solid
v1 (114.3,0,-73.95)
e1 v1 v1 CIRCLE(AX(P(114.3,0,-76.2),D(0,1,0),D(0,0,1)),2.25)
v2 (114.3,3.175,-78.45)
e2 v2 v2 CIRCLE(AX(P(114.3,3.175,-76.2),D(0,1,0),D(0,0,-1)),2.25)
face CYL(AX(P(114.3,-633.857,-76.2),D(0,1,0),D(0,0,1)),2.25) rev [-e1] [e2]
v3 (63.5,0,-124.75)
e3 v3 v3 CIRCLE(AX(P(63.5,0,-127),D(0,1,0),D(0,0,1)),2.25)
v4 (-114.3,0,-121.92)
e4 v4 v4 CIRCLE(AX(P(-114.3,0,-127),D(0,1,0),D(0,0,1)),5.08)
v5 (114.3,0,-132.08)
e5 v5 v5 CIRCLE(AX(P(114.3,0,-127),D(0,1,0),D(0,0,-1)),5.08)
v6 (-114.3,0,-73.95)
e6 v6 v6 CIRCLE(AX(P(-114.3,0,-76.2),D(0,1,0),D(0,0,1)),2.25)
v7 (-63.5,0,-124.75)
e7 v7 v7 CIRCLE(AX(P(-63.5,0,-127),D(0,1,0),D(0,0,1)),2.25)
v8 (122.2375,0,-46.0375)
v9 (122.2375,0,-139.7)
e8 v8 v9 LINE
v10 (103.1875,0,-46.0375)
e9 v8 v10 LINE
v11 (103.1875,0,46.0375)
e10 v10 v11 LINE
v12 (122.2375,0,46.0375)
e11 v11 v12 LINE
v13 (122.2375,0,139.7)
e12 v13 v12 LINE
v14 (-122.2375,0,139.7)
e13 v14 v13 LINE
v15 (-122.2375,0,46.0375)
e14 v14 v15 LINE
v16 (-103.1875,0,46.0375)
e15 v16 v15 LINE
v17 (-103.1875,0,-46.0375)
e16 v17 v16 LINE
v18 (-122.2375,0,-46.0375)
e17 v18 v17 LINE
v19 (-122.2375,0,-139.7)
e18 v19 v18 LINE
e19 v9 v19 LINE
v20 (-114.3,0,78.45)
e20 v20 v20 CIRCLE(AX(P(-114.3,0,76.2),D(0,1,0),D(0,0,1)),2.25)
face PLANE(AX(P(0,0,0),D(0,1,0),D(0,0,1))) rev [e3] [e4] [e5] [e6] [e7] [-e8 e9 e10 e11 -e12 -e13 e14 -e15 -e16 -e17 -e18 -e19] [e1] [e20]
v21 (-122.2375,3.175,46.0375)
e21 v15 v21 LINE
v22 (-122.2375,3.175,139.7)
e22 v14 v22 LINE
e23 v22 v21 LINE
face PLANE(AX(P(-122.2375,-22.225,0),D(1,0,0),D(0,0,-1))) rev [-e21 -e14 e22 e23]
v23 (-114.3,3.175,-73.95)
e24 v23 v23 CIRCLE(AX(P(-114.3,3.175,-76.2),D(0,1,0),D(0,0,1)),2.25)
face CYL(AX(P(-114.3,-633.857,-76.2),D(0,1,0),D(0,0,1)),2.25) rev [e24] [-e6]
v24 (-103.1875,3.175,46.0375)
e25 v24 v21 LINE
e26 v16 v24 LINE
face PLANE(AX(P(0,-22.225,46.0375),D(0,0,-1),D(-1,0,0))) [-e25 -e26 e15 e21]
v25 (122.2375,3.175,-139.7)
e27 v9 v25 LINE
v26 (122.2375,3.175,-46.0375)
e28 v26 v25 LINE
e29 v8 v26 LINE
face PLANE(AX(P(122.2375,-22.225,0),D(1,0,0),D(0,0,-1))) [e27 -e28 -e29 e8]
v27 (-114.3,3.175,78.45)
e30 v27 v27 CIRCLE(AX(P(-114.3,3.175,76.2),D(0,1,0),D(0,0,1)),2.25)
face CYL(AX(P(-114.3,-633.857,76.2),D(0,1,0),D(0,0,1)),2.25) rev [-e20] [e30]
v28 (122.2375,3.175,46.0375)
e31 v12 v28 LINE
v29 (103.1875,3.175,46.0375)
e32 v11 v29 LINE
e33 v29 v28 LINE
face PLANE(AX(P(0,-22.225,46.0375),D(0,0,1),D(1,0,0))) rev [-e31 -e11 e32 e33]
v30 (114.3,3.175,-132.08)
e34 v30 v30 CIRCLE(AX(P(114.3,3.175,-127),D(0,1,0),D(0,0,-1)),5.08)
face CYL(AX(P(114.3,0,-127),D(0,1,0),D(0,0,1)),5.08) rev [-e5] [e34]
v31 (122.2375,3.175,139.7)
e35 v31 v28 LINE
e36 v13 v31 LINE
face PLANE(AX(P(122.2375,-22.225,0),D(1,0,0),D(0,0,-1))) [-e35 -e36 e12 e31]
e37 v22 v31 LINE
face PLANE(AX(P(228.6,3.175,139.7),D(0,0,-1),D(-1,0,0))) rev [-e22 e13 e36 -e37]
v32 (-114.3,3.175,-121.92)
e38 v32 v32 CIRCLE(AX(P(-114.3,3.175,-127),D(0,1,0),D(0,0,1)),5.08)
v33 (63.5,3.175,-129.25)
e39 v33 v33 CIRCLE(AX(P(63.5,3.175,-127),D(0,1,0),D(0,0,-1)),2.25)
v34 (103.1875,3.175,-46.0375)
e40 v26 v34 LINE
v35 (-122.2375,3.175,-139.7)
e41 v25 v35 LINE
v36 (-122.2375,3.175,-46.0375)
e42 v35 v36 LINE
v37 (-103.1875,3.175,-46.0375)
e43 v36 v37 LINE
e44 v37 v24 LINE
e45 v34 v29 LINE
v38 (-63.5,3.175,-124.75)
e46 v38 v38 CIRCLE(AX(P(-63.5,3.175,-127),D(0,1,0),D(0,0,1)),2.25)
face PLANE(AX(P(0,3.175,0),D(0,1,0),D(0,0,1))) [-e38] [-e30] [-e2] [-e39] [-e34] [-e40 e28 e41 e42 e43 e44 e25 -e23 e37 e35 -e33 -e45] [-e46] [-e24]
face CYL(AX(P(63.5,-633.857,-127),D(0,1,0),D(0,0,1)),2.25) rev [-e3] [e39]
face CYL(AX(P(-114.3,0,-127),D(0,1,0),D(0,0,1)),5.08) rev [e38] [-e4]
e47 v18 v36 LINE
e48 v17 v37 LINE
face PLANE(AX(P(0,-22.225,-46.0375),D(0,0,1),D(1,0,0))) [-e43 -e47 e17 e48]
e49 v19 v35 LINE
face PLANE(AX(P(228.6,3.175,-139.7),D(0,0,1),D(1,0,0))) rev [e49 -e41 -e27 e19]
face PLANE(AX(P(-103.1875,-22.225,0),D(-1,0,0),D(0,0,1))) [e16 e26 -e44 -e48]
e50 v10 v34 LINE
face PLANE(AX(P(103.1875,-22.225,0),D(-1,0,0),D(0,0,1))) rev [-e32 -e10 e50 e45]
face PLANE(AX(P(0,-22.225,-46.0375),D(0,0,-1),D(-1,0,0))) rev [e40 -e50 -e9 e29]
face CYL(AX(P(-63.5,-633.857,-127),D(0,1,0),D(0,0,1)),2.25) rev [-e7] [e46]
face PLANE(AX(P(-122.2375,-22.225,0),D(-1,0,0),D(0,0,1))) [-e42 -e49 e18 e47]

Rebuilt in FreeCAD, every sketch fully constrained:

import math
import FreeCAD as App
import Part
import Sketcher
Q = App.Units.Quantity

doc = App.newDocument("Part")
body = doc.addObject("PartDesign::Body", "Body")

sketch1 = doc.addObject("Sketcher::SketchObject", "Sketch")
body.addObject(sketch1)
sketch1.AttachmentSupport = (doc.XZ_Plane, [""])
sketch1.MapMode = "FlatFace"
sketch1.addGeometry(Part.LineSegment(App.Vector(-229, -140, 0), App.Vector(-229, 140, 0)), False)
sketch1.addGeometry(Part.LineSegment(App.Vector(-229, 140, 0), App.Vector(229, 140, 0)), False)
sketch1.addGeometry(Part.LineSegment(App.Vector(229, 140, 0), App.Vector(229, -140, 0)), False)
sketch1.addGeometry(Part.LineSegment(App.Vector(229, -140, 0), App.Vector(-229, -140, 0)), False)
sketch1.addConstraint(Sketcher.Constraint("Coincident", 0, 2, 1, 1))
sketch1.addConstraint(Sketcher.Constraint("Coincident", 1, 2, 2, 1))
sketch1.addConstraint(Sketcher.Constraint("Coincident", 2, 2, 3, 1))
sketch1.addConstraint(Sketcher.Constraint("Coincident", 3, 2, 0, 1))
sketch1.addConstraint(Sketcher.Constraint("Vertical", 0))
sketch1.addConstraint(Sketcher.Constraint("Horizontal", 1))
sketch1.addConstraint(Sketcher.Constraint("Vertical", 2))
sketch1.addConstraint(Sketcher.Constraint("Horizontal", 3))
sketch1.addConstraint(Sketcher.Constraint("Symmetric", 0, 2, 2, 2, -1, 1))
sketch1.addConstraint(Sketcher.Constraint("DistanceX", 1, 1, 1, 2, Q("18 in")))
sketch1.addConstraint(Sketcher.Constraint("DistanceY", 0, 1, 0, 2, Q("11 in")))
pad1 = doc.addObject("PartDesign::Pad", "Pad")
body.addObject(pad1)
pad1.Profile = sketch1
pad1.Length = Q("0.125 in")
pad1.Reversed = True

sketch2 = doc.addObject("Sketcher::SketchObject", "Sketch001")
body.addObject(sketch2)
sketch2.AttachmentSupport = (doc.XZ_Plane, [""])
sketch2.MapMode = "FlatFace"
sketch2.AttachmentOffset = App.Placement(App.Vector(0, 0, -0.125 * 25.4), App.Rotation())
sketch2.addGeometry(Part.Circle(App.Vector(-114, -127, 0), App.Vector(0, 0, 1), 5), False)
sketch2.addGeometry(Part.Circle(App.Vector(114, -127, 0), App.Vector(0, 0, 1), 5), False)
sketch2.addGeometry(Part.Circle(App.Vector(-216, 127, 0), App.Vector(0, 0, 1), 5), False)
sketch2.addGeometry(Part.Circle(App.Vector(216, 127, 0), App.Vector(0, 0, 1), 5), False)
sketch2.addGeometry(Part.LineSegment(App.Vector(-206, -124, 0), App.Vector(-212, -131, 0)), False)
sketch2.addGeometry(Part.ArcOfCircle(Part.Circle(App.Vector(-216, -127, 0), App.Vector(0, 0, 1), 5), math.radians(135), math.radians(315)), False)
sketch2.addGeometry(Part.LineSegment(App.Vector(-219, -123, 0), App.Vector(-213, -117, 0)), False)
sketch2.addGeometry(Part.ArcOfCircle(Part.Circle(App.Vector(-210, -121, 0), App.Vector(0, 0, 1), 5), math.radians(-45), math.radians(135)), False)
sketch2.addGeometry(Part.LineSegment(App.Vector(212, -131, 0), App.Vector(206, -124, 0)), False)
sketch2.addGeometry(Part.ArcOfCircle(Part.Circle(App.Vector(210, -121, 0), App.Vector(0, 0, 1), 5), math.radians(45), math.radians(225)), False)
sketch2.addGeometry(Part.LineSegment(App.Vector(213, -117, 0), App.Vector(219, -123, 0)), False)
sketch2.addGeometry(Part.ArcOfCircle(Part.Circle(App.Vector(216, -127, 0), App.Vector(0, 0, 1), 5), math.radians(-135), math.radians(45)), False)
sketch2.addConstraint(Sketcher.Constraint("Tangent", 4, 2, 5, 2))
sketch2.addConstraint(Sketcher.Constraint("Tangent", 5, 1, 6, 1))
sketch2.addConstraint(Sketcher.Constraint("Tangent", 6, 2, 7, 2))
sketch2.addConstraint(Sketcher.Constraint("Tangent", 7, 1, 4, 1))
sketch2.addConstraint(Sketcher.Constraint("Tangent", 8, 2, 9, 2))
sketch2.addConstraint(Sketcher.Constraint("Tangent", 9, 1, 10, 1))
sketch2.addConstraint(Sketcher.Constraint("Tangent", 10, 2, 11, 2))
sketch2.addConstraint(Sketcher.Constraint("Tangent", 11, 1, 8, 1))
sketch2.addConstraint(Sketcher.Constraint("Equal", 0, 1))
sketch2.addConstraint(Sketcher.Constraint("Equal", 1, 2))
sketch2.addConstraint(Sketcher.Constraint("Equal", 2, 3))
sketch2.addConstraint(Sketcher.Constraint("Equal", 3, 5))
sketch2.addConstraint(Sketcher.Constraint("Equal", 5, 7))
sketch2.addConstraint(Sketcher.Constraint("Equal", 7, 9))
sketch2.addConstraint(Sketcher.Constraint("Equal", 9, 11))
sketch2.addConstraint(Sketcher.Constraint("Symmetric", 3, 3, 5, 3, -1, 1))
sketch2.addConstraint(Sketcher.Constraint("Symmetric", 2, 3, 11, 3, -1, 1))
sketch2.addConstraint(Sketcher.Constraint("Symmetric", 0, 3, 1, 3, -2))
sketch2.addConstraint(Sketcher.Constraint("Symmetric", 2, 3, 3, 3, -2))
sketch2.addConstraint(Sketcher.Constraint("Symmetric", 7, 3, 9, 3, -2))
sketch2.addConstraint(Sketcher.Constraint("Perpendicular", 6, 8))
sketch2.addConstraint(Sketcher.Constraint("Horizontal", 1, 3, 5, 3))
sketch2.addConstraint(Sketcher.Constraint("Diameter", 0, Q("0.4 in")))
sketch2.addConstraint(Sketcher.Constraint("DistanceY", 0, 3, -1, 1, Q("5 in")))
sketch2.addConstraint(Sketcher.Constraint("DistanceX", 0, 3, 1, 3, Q("9 in")))
sketch2.addConstraint(Sketcher.Constraint("DistanceX", 2, 3, 0, 3, Q("4 in")))
sketch2.addConstraint(Sketcher.Constraint("DistanceX", 7, 3, 9, 3, Q("16.5 in")))
pocket1 = doc.addObject("PartDesign::Pocket", "Pocket")
body.addObject(pocket1)
pocket1.Profile = sketch2
pocket1.Length = Q("0.125 in")
pocket1.Reversed = True

sketch3 = doc.addObject("Sketcher::SketchObject", "Sketch002")
body.addObject(sketch3)
sketch3.AttachmentSupport = (doc.XZ_Plane, [""])
sketch3.MapMode = "FlatFace"
sketch3.AttachmentOffset = App.Placement(App.Vector(0, 0, -0.125 * 25.4), App.Rotation())
sketch3.addGeometry(Part.Circle(App.Vector(-196.8, -127, 0), App.Vector(0, 0, 1), 2.2), False)
sketch3.addGeometry(Part.Circle(App.Vector(-215.9, -108, 0), App.Vector(0, 0, 1), 2.2), False)
sketch3.addGeometry(Part.Circle(App.Vector(196.8, -127, 0), App.Vector(0, 0, 1), 2.2), False)
sketch3.addGeometry(Part.Circle(App.Vector(215.9, -108, 0), App.Vector(0, 0, 1), 2.2), False)
sketch3.addConstraint(Sketcher.Constraint("Equal", 0, 1))
sketch3.addConstraint(Sketcher.Constraint("Equal", 1, 2))
sketch3.addConstraint(Sketcher.Constraint("Equal", 2, 3))
sketch3.addConstraint(Sketcher.Constraint("Symmetric", 0, 3, 2, 3, -2))
sketch3.addConstraint(Sketcher.Constraint("Symmetric", 1, 3, 3, 3, -2))
sketch3.addConstraint(Sketcher.Constraint("DistanceY", 0, 3, -1, 1, Q("5 in")))
sketch3.addConstraint(Sketcher.Constraint("DistanceX", 1, 3, 3, 3, Q("17 in")))
sketch3.addConstraint(Sketcher.Constraint("DistanceX", 0, 3, 2, 3, Q("15.5 in")))
sketch3.addConstraint(Sketcher.Constraint("Diameter", 0, 4.5))
sketch3.addConstraint(Sketcher.Constraint("DistanceY", 1, 3, -1, 1, Q("4.25 in")))
pocket2 = doc.addObject("PartDesign::Pocket", "Pocket001")
body.addObject(pocket2)
pocket2.Profile = sketch3
pocket2.Length = Q("1 in")
pocket2.Reversed = True

sketch4 = doc.addObject("Sketcher::SketchObject", "Sketch003")
body.addObject(sketch4)
sketch4.AttachmentSupport = (doc.XZ_Plane, [""])
sketch4.MapMode = "FlatFace"
sketch4.AttachmentOffset = App.Placement(App.Vector(0, 0, -0.125 * 25.4), App.Rotation())
sketch4.addGeometry(Part.Circle(App.Vector(-215.9, -76.2, 0), App.Vector(0, 0, 1), 2.2), False)
sketch4.addGeometry(Part.Circle(App.Vector(-215.9, 0, 0), App.Vector(0, 0, 1), 2.2), False)
sketch4.addGeometry(Part.Circle(App.Vector(-215.9, 88.9, 0), App.Vector(0, 0, 1), 2.2), False)
sketch4.addGeometry(Part.Circle(App.Vector(-114.3, 76.2, 0), App.Vector(0, 0, 1), 2.2), False)
sketch4.addGeometry(Part.Circle(App.Vector(-114.3, -76.2, 0), App.Vector(0, 0, 1), 2.2), False)
sketch4.addGeometry(Part.Circle(App.Vector(-63.5, -127, 0), App.Vector(0, 0, 1), 2.2), False)
sketch4.addGeometry(Part.Circle(App.Vector(63.5, -127, 0), App.Vector(0, 0, 1), 2.2), False)
sketch4.addGeometry(Part.Circle(App.Vector(114.3, -76.2, 0), App.Vector(0, 0, 1), 2.2), False)
sketch4.addGeometry(Part.Circle(App.Vector(215.9, 88.9, 0), App.Vector(0, 0, 1), 2.2), False)
sketch4.addGeometry(Part.Circle(App.Vector(215.9, 0, 0), App.Vector(0, 0, 1), 2.2), False)
sketch4.addGeometry(Part.Circle(App.Vector(215.9, -76.2, 0), App.Vector(0, 0, 1), 2.2), False)
sketch4.addConstraint(Sketcher.Constraint("Equal", 0, 1))
sketch4.addConstraint(Sketcher.Constraint("Equal", 1, 2))
sketch4.addConstraint(Sketcher.Constraint("Equal", 2, 3))
sketch4.addConstraint(Sketcher.Constraint("Equal", 3, 4))
sketch4.addConstraint(Sketcher.Constraint("Equal", 4, 5))
sketch4.addConstraint(Sketcher.Constraint("Equal", 5, 6))
sketch4.addConstraint(Sketcher.Constraint("Equal", 6, 7))
sketch4.addConstraint(Sketcher.Constraint("Equal", 7, 8))
sketch4.addConstraint(Sketcher.Constraint("Equal", 8, 9))
sketch4.addConstraint(Sketcher.Constraint("Equal", 9, 10))
sketch4.addConstraint(Sketcher.Constraint("Symmetric", 3, 3, 7, 3, -1, 1))
sketch4.addConstraint(Sketcher.Constraint("Symmetric", 1, 3, 9, 3, -1, 1))
sketch4.addConstraint(Sketcher.Constraint("Symmetric", 5, 3, 6, 3, -2))
sketch4.addConstraint(Sketcher.Constraint("Symmetric", 4, 3, 7, 3, -2))
sketch4.addConstraint(Sketcher.Constraint("Symmetric", 2, 3, 8, 3, -2))
sketch4.addConstraint(Sketcher.Constraint("Symmetric", 0, 3, 10, 3, -2))
sketch4.addConstraint(Sketcher.Constraint("PointOnObject", 1, 3, -1))
sketch4.addConstraint(Sketcher.Constraint("Horizontal", 0, 3, 4, 3))
sketch4.addConstraint(Sketcher.Constraint("Vertical", 0, 3, 1, 3))
sketch4.addConstraint(Sketcher.Constraint("Vertical", 1, 3, 2, 3))
sketch4.addConstraint(Sketcher.Constraint("DistanceY", 0, 3, -1, 1, Q("3 in")))
sketch4.addConstraint(Sketcher.Constraint("DistanceY", 5, 3, -1, 1, Q("5 in")))
sketch4.addConstraint(Sketcher.Constraint("DistanceX", 2, 3, 3, 3, Q("4 in")))
sketch4.addConstraint(Sketcher.Constraint("DistanceX", 4, 3, 5, 3, Q("2 in")))
sketch4.addConstraint(Sketcher.Constraint("DistanceX", 5, 3, 6, 3, Q("5 in")))
sketch4.addConstraint(Sketcher.Constraint("DistanceY", -1, 1, 2, 3, Q("3.5 in")))
sketch4.addConstraint(Sketcher.Constraint("Diameter", 0, 4.5))
pocket3 = doc.addObject("PartDesign::Pocket", "Pocket002")
body.addObject(pocket3)
pocket3.Profile = sketch4
pocket3.Length = Q("25.08 in")
pocket3.Reversed = True

sketch5 = doc.addObject("Sketcher::SketchObject", "Sketch004")
body.addObject(sketch5)
sketch5.AttachmentSupport = (doc.XZ_Plane, [""])
sketch5.MapMode = "FlatFace"
sketch5.AttachmentOffset = App.Placement(App.Vector(0, 0, -0.125 * 25.4), App.Rotation())
sketch5.addGeometry(Part.LineSegment(App.Vector(-122.2, -46, 0), App.Vector(-122.2, -139.7, 0)), False)
sketch5.addGeometry(Part.LineSegment(App.Vector(-122.2, -139.7, 0), App.Vector(-228.6, -139.7, 0)), False)
sketch5.addGeometry(Part.LineSegment(App.Vector(-228.6, -139.7, 0), App.Vector(-228.6, 139.7, 0)), False)
sketch5.addGeometry(Part.LineSegment(App.Vector(-228.6, 139.7, 0), App.Vector(-122.2, 139.7, 0)), False)
sketch5.addGeometry(Part.LineSegment(App.Vector(-122.2, 139.7, 0), App.Vector(-122.2, 46, 0)), False)
sketch5.addGeometry(Part.LineSegment(App.Vector(-122.2, 46, 0), App.Vector(-103.2, 46, 0)), False)
sketch5.addGeometry(Part.LineSegment(App.Vector(-103.2, 46, 0), App.Vector(-103.2, -46, 0)), False)
sketch5.addGeometry(Part.LineSegment(App.Vector(-103.2, -46, 0), App.Vector(-122.2, -46, 0)), False)
sketch5.addGeometry(Part.Circle(App.Vector(-215.9, 127, 0), App.Vector(0, 0, 1), 5.1), False)
sketch5.addGeometry(Part.Circle(App.Vector(-215.9, 88.9, 0), App.Vector(0, 0, 1), 2.2), False)
sketch5.addGeometry(Part.Circle(App.Vector(-215.9, 0, 0), App.Vector(0, 0, 1), 2.2), False)
sketch5.addGeometry(Part.Circle(App.Vector(-215.9, -76.2, 0), App.Vector(0, 0, 1), 2.2), False)
sketch5.addGeometry(Part.Circle(App.Vector(-215.9, -108, 0), App.Vector(0, 0, 1), 2.2), False)
sketch5.addGeometry(Part.ArcOfCircle(Part.Circle(App.Vector(-209.6, -120.7, 0), App.Vector(0, 0, 1), 5.1), math.radians(-45), math.radians(135)), False)
sketch5.addGeometry(Part.LineSegment(App.Vector(-213.1, -117.1, 0), App.Vector(-219.5, -123.4, 0)), False)
sketch5.addGeometry(Part.ArcOfCircle(Part.Circle(App.Vector(-215.9, -127, 0), App.Vector(0, 0, 1), 5.1), math.radians(135), math.radians(315)), False)
sketch5.addGeometry(Part.LineSegment(App.Vector(-212.3, -130.6, 0), App.Vector(-206, -124.2, 0)), False)
sketch5.addGeometry(Part.Circle(App.Vector(-196.8, -127, 0), App.Vector(0, 0, 1), 2.2), False)
sketch5.addGeometry(Part.LineSegment(App.Vector(228.6, -139.7, 0), App.Vector(122.2, -139.7, 0)), False)
sketch5.addGeometry(Part.LineSegment(App.Vector(122.2, -139.7, 0), App.Vector(122.2, -46, 0)), False)
sketch5.addGeometry(Part.LineSegment(App.Vector(122.2, -46, 0), App.Vector(103.2, -46, 0)), False)
sketch5.addGeometry(Part.LineSegment(App.Vector(103.2, -46, 0), App.Vector(103.2, 46, 0)), False)
sketch5.addGeometry(Part.LineSegment(App.Vector(103.2, 46, 0), App.Vector(122.2, 46, 0)), False)
sketch5.addGeometry(Part.LineSegment(App.Vector(122.2, 46, 0), App.Vector(122.2, 139.7, 0)), False)
sketch5.addGeometry(Part.LineSegment(App.Vector(122.2, 139.7, 0), App.Vector(228.6, 139.7, 0)), False)
sketch5.addGeometry(Part.LineSegment(App.Vector(228.6, 139.7, 0), App.Vector(228.6, -139.7, 0)), False)
sketch5.addGeometry(Part.Circle(App.Vector(215.9, 127, 0), App.Vector(0, 0, 1), 5.1), False)
sketch5.addGeometry(Part.Circle(App.Vector(215.9, 88.9, 0), App.Vector(0, 0, 1), 2.2), False)
sketch5.addGeometry(Part.Circle(App.Vector(196.8, -127, 0), App.Vector(0, 0, 1), 2.2), False)
sketch5.addGeometry(Part.Circle(App.Vector(215.9, 0, 0), App.Vector(0, 0, 1), 2.2), False)
sketch5.addGeometry(Part.ArcOfCircle(Part.Circle(App.Vector(209.6, -120.7, 0), App.Vector(0, 0, 1), 5.1), math.radians(45), math.radians(225)), False)
sketch5.addGeometry(Part.LineSegment(App.Vector(206, -124.2, 0), App.Vector(212.3, -130.6, 0)), False)
sketch5.addGeometry(Part.ArcOfCircle(Part.Circle(App.Vector(215.9, -127, 0), App.Vector(0, 0, 1), 5.1), math.radians(-135), math.radians(45)), False)
sketch5.addGeometry(Part.LineSegment(App.Vector(219.5, -123.4, 0), App.Vector(213.1, -117.1, 0)), False)
sketch5.addGeometry(Part.Circle(App.Vector(215.9, -76.2, 0), App.Vector(0, 0, 1), 2.2), False)
sketch5.addGeometry(Part.Circle(App.Vector(215.9, -108, 0), App.Vector(0, 0, 1), 2.2), False)
sketch5.addConstraint(Sketcher.Constraint("Coincident", 0, 2, 1, 1))
sketch5.addConstraint(Sketcher.Constraint("Coincident", 1, 2, 2, 1))
sketch5.addConstraint(Sketcher.Constraint("Coincident", 2, 2, 3, 1))
sketch5.addConstraint(Sketcher.Constraint("Coincident", 3, 2, 4, 1))
sketch5.addConstraint(Sketcher.Constraint("Coincident", 4, 2, 5, 1))
sketch5.addConstraint(Sketcher.Constraint("Coincident", 5, 2, 6, 1))
sketch5.addConstraint(Sketcher.Constraint("Coincident", 6, 2, 7, 1))
sketch5.addConstraint(Sketcher.Constraint("Coincident", 7, 2, 0, 1))
sketch5.addConstraint(Sketcher.Constraint("Tangent", 13, 2, 14, 1))
sketch5.addConstraint(Sketcher.Constraint("Tangent", 14, 2, 15, 1))
sketch5.addConstraint(Sketcher.Constraint("Tangent", 15, 2, 16, 1))
sketch5.addConstraint(Sketcher.Constraint("Tangent", 16, 2, 13, 1))
sketch5.addConstraint(Sketcher.Constraint("Coincident", 18, 2, 19, 1))
sketch5.addConstraint(Sketcher.Constraint("Coincident", 19, 2, 20, 1))
sketch5.addConstraint(Sketcher.Constraint("Coincident", 20, 2, 21, 1))
sketch5.addConstraint(Sketcher.Constraint("Coincident", 21, 2, 22, 1))
sketch5.addConstraint(Sketcher.Constraint("Coincident", 22, 2, 23, 1))
sketch5.addConstraint(Sketcher.Constraint("Coincident", 23, 2, 24, 1))
sketch5.addConstraint(Sketcher.Constraint("Coincident", 24, 2, 25, 1))
sketch5.addConstraint(Sketcher.Constraint("Coincident", 25, 2, 18, 1))
sketch5.addConstraint(Sketcher.Constraint("Tangent", 30, 2, 31, 1))
sketch5.addConstraint(Sketcher.Constraint("Tangent", 31, 2, 32, 1))
sketch5.addConstraint(Sketcher.Constraint("Tangent", 32, 2, 33, 1))
sketch5.addConstraint(Sketcher.Constraint("Tangent", 33, 2, 30, 1))
sketch5.addConstraint(Sketcher.Constraint("Vertical", 0))
sketch5.addConstraint(Sketcher.Constraint("Horizontal", 1))
sketch5.addConstraint(Sketcher.Constraint("Vertical", 2))
sketch5.addConstraint(Sketcher.Constraint("Horizontal", 3))
sketch5.addConstraint(Sketcher.Constraint("Vertical", 4))
sketch5.addConstraint(Sketcher.Constraint("Horizontal", 5))
sketch5.addConstraint(Sketcher.Constraint("Vertical", 6))
sketch5.addConstraint(Sketcher.Constraint("Horizontal", 7))
sketch5.addConstraint(Sketcher.Constraint("Horizontal", 18))
sketch5.addConstraint(Sketcher.Constraint("Vertical", 19))
sketch5.addConstraint(Sketcher.Constraint("Horizontal", 20))
sketch5.addConstraint(Sketcher.Constraint("Vertical", 21))
sketch5.addConstraint(Sketcher.Constraint("Horizontal", 22))
sketch5.addConstraint(Sketcher.Constraint("Vertical", 23))
sketch5.addConstraint(Sketcher.Constraint("Horizontal", 24))
sketch5.addConstraint(Sketcher.Constraint("Vertical", 25))
sketch5.addConstraint(Sketcher.Constraint("Equal", 9, 10))
sketch5.addConstraint(Sketcher.Constraint("Equal", 10, 11))
sketch5.addConstraint(Sketcher.Constraint("Equal", 11, 12))
sketch5.addConstraint(Sketcher.Constraint("Equal", 8, 13))
sketch5.addConstraint(Sketcher.Constraint("Equal", 13, 15))
sketch5.addConstraint(Sketcher.Constraint("Equal", 12, 17))
sketch5.addConstraint(Sketcher.Constraint("Equal", 15, 26))
sketch5.addConstraint(Sketcher.Constraint("Equal", 17, 27))
sketch5.addConstraint(Sketcher.Constraint("Equal", 27, 28))
sketch5.addConstraint(Sketcher.Constraint("Equal", 28, 29))
sketch5.addConstraint(Sketcher.Constraint("Equal", 26, 30))
sketch5.addConstraint(Sketcher.Constraint("Equal", 30, 32))
sketch5.addConstraint(Sketcher.Constraint("Equal", 29, 34))
sketch5.addConstraint(Sketcher.Constraint("Equal", 34, 35))
sketch5.addConstraint(Sketcher.Constraint("Symmetric", 15, 3, 26, 3, -1, 1))
sketch5.addConstraint(Sketcher.Constraint("Symmetric", 10, 3, 29, 3, -1, 1))
sketch5.addConstraint(Sketcher.Constraint("Symmetric", 8, 3, 32, 3, -1, 1))
sketch5.addConstraint(Sketcher.Constraint("Symmetric", 3, 2, 18, 2, -1, 1))
sketch5.addConstraint(Sketcher.Constraint("Symmetric", 5, 2, 20, 2, -1, 1))
sketch5.addConstraint(Sketcher.Constraint("Symmetric", 7, 2, 22, 2, -1, 1))
sketch5.addConstraint(Sketcher.Constraint("Symmetric", 1, 2, 24, 2, -1, 1))
sketch5.addConstraint(Sketcher.Constraint("Symmetric", 8, 3, 26, 3, -2))
sketch5.addConstraint(Sketcher.Constraint("Symmetric", 9, 3, 27, 3, -2))
sketch5.addConstraint(Sketcher.Constraint("Symmetric", 17, 3, 28, 3, -2))
sketch5.addConstraint(Sketcher.Constraint("Symmetric", 13, 3, 30, 3, -2))
sketch5.addConstraint(Sketcher.Constraint("Symmetric", 11, 3, 34, 3, -2))
sketch5.addConstraint(Sketcher.Constraint("Symmetric", 12, 3, 35, 3, -2))
sketch5.addConstraint(Sketcher.Constraint("Symmetric", 0, 2, 18, 2, -2))
sketch5.addConstraint(Sketcher.Constraint("PointOnObject", 10, 3, -1))
sketch5.addConstraint(Sketcher.Constraint("Perpendicular", 16, 31))
sketch5.addConstraint(Sketcher.Constraint("Horizontal", 15, 3, 17, 3))
sketch5.addConstraint(Sketcher.Constraint("Horizontal", 7, 2, 19, 2))
sketch5.addConstraint(Sketcher.Constraint("Vertical", 8, 3, 9, 3))
sketch5.addConstraint(Sketcher.Constraint("Vertical", 9, 3, 10, 3))
sketch5.addConstraint(Sketcher.Constraint("Vertical", 10, 3, 11, 3))
sketch5.addConstraint(Sketcher.Constraint("Vertical", 11, 3, 12, 3))
sketch5.addConstraint(Sketcher.Constraint("Diameter", 8, Q("0.4 in")))
sketch5.addConstraint(Sketcher.Constraint("DistanceY", 2, 1, 2, 2, Q("11 in")))
sketch5.addConstraint(Sketcher.Constraint("DistanceY", -1, 1, 8, 3, Q("5 in")))
sketch5.addConstraint(Sketcher.Constraint("DistanceY", 11, 3, -1, 1, Q("3 in")))
sketch5.addConstraint(Sketcher.Constraint("DistanceX", 1, 2, -1, 1, Q("9 in")))
sketch5.addConstraint(Sketcher.Constraint("DistanceX", 8, 3, 26, 3, Q("17 in")))
sketch5.addConstraint(Sketcher.Constraint("DistanceX", 13, 3, 28, 3, Q("16 in")))
sketch5.addConstraint(Sketcher.Constraint("DistanceY", 9, 3, 2, 2, Q("2 in")))
sketch5.addConstraint(Sketcher.Constraint("DistanceX", 5, 1, 5, 2, Q("0.75 in")))
sketch5.addConstraint(Sketcher.Constraint("DistanceY", 13, 3, 12, 3, Q("0.5 in")))
sketch5.addConstraint(Sketcher.Constraint("DistanceX", 13, 3, 17, 3, Q("0.5 in")))
sketch5.addConstraint(Sketcher.Constraint("Diameter", 9, 4.5))
sketch5.addConstraint(Sketcher.Constraint("DistanceX", 1, 2, 1, 1, Q("4.1875 in")))
sketch5.addConstraint(Sketcher.Constraint("DistanceY", 0, 2, 0, 1, Q("3.6875 in")))
pocket4 = doc.addObject("PartDesign::Pocket", "Pocket003")
body.addObject(pocket4)
pocket4.Profile = sketch5
pocket4.Length = Q("1 in")
pocket4.Reversed = True

doc.recompute()
